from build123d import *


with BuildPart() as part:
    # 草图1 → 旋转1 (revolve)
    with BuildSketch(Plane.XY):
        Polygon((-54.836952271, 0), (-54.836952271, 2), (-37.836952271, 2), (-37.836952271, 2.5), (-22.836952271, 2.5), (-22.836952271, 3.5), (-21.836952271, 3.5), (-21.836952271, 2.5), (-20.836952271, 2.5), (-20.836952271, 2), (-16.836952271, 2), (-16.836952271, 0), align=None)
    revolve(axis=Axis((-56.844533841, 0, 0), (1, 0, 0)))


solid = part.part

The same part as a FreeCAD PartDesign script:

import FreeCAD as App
import Part
import Sketcher


def add_polygon(sketch, points):
    """Adds a closed chain of lines whose ends are joined by coincident constraints."""
    first, n = sketch.GeometryCount, len(points)
    for a, b in zip(points, points[1:] + points[:1]):
        sketch.addGeometry(Part.LineSegment(App.Vector(*a, 0), App.Vector(*b, 0)), False)
    for i in range(n):
        sketch.addConstraint(Sketcher.Constraint("Coincident", first + i, 2, first + (i + 1) % n, 1))

doc = App.newDocument("Part")
body = doc.addObject("PartDesign::Body", "Body")

sketch1 = body.newObject("Sketcher::SketchObject", "Sketch")
sketch1.AttachmentSupport = (doc.getObject("XY_Plane"), [""])
sketch1.MapMode = "FlatFace"
add_polygon(sketch1, [(-54.836952, 2), (-54.836952, 0), (-16.836952, 0), (-16.836952, 2), (-20.836952, 2), (-20.836952, 2.5), (-21.836952, 2.5), (-21.836952, 3.5), (-22.836952, 3.5), (-22.836952, 2.5), (-37.836952, 2.5), (-37.836952, 2)])
sketch1.addConstraint([
    Sketcher.Constraint("Vertical", 0),
    Sketcher.Constraint("Horizontal", 1),
    Sketcher.Constraint("Vertical", 2),
    Sketcher.Constraint("Horizontal", 3),
    Sketcher.Constraint("Vertical", 4),
    Sketcher.Constraint("Horizontal", 5),
    Sketcher.Constraint("Vertical", 6),
    Sketcher.Constraint("Horizontal", 7),
    Sketcher.Constraint("Vertical", 8),
    Sketcher.Constraint("Horizontal", 9),
    Sketcher.Constraint("Vertical", 10),
    Sketcher.Constraint("Horizontal", 11),
    Sketcher.Constraint("PointOnObject", 0, 2, -1),
    Sketcher.Constraint("Horizontal", 5, 2, 8, 2),
    Sketcher.Constraint("Horizontal", 3, 2, 10, 2),
    Sketcher.Constraint("Equal", 5, 7),
    Sketcher.Constraint("Equal", 7, 6),
    Sketcher.Constraint("DistanceX", 1, 1, 1, 2, 38.0),
    Sketcher.Constraint("DistanceX", 3, 2, 3, 1, 4.0),
    Sketcher.Constraint("DistanceX", 5, 2, 5, 1, 1.0),
    Sketcher.Constraint("DistanceX", 9, 2, 9, 1, 15.0),
    Sketcher.Constraint("DistanceY", 0, 2, 0, 1, 2.0),
    Sketcher.Constraint("DistanceY", 4, 1, 4, 2, 0.5),
    Sketcher.Constraint("DistanceX", 0, 2, -1, 1, 54.836952),
])
revolution = body.newObject("PartDesign::Revolution", "Revolution")
revolution.Profile = sketch1
revolution.ReferenceAxis = (sketch1, ["H_Axis"])
revolution.Angle = 360

doc.recompute()
